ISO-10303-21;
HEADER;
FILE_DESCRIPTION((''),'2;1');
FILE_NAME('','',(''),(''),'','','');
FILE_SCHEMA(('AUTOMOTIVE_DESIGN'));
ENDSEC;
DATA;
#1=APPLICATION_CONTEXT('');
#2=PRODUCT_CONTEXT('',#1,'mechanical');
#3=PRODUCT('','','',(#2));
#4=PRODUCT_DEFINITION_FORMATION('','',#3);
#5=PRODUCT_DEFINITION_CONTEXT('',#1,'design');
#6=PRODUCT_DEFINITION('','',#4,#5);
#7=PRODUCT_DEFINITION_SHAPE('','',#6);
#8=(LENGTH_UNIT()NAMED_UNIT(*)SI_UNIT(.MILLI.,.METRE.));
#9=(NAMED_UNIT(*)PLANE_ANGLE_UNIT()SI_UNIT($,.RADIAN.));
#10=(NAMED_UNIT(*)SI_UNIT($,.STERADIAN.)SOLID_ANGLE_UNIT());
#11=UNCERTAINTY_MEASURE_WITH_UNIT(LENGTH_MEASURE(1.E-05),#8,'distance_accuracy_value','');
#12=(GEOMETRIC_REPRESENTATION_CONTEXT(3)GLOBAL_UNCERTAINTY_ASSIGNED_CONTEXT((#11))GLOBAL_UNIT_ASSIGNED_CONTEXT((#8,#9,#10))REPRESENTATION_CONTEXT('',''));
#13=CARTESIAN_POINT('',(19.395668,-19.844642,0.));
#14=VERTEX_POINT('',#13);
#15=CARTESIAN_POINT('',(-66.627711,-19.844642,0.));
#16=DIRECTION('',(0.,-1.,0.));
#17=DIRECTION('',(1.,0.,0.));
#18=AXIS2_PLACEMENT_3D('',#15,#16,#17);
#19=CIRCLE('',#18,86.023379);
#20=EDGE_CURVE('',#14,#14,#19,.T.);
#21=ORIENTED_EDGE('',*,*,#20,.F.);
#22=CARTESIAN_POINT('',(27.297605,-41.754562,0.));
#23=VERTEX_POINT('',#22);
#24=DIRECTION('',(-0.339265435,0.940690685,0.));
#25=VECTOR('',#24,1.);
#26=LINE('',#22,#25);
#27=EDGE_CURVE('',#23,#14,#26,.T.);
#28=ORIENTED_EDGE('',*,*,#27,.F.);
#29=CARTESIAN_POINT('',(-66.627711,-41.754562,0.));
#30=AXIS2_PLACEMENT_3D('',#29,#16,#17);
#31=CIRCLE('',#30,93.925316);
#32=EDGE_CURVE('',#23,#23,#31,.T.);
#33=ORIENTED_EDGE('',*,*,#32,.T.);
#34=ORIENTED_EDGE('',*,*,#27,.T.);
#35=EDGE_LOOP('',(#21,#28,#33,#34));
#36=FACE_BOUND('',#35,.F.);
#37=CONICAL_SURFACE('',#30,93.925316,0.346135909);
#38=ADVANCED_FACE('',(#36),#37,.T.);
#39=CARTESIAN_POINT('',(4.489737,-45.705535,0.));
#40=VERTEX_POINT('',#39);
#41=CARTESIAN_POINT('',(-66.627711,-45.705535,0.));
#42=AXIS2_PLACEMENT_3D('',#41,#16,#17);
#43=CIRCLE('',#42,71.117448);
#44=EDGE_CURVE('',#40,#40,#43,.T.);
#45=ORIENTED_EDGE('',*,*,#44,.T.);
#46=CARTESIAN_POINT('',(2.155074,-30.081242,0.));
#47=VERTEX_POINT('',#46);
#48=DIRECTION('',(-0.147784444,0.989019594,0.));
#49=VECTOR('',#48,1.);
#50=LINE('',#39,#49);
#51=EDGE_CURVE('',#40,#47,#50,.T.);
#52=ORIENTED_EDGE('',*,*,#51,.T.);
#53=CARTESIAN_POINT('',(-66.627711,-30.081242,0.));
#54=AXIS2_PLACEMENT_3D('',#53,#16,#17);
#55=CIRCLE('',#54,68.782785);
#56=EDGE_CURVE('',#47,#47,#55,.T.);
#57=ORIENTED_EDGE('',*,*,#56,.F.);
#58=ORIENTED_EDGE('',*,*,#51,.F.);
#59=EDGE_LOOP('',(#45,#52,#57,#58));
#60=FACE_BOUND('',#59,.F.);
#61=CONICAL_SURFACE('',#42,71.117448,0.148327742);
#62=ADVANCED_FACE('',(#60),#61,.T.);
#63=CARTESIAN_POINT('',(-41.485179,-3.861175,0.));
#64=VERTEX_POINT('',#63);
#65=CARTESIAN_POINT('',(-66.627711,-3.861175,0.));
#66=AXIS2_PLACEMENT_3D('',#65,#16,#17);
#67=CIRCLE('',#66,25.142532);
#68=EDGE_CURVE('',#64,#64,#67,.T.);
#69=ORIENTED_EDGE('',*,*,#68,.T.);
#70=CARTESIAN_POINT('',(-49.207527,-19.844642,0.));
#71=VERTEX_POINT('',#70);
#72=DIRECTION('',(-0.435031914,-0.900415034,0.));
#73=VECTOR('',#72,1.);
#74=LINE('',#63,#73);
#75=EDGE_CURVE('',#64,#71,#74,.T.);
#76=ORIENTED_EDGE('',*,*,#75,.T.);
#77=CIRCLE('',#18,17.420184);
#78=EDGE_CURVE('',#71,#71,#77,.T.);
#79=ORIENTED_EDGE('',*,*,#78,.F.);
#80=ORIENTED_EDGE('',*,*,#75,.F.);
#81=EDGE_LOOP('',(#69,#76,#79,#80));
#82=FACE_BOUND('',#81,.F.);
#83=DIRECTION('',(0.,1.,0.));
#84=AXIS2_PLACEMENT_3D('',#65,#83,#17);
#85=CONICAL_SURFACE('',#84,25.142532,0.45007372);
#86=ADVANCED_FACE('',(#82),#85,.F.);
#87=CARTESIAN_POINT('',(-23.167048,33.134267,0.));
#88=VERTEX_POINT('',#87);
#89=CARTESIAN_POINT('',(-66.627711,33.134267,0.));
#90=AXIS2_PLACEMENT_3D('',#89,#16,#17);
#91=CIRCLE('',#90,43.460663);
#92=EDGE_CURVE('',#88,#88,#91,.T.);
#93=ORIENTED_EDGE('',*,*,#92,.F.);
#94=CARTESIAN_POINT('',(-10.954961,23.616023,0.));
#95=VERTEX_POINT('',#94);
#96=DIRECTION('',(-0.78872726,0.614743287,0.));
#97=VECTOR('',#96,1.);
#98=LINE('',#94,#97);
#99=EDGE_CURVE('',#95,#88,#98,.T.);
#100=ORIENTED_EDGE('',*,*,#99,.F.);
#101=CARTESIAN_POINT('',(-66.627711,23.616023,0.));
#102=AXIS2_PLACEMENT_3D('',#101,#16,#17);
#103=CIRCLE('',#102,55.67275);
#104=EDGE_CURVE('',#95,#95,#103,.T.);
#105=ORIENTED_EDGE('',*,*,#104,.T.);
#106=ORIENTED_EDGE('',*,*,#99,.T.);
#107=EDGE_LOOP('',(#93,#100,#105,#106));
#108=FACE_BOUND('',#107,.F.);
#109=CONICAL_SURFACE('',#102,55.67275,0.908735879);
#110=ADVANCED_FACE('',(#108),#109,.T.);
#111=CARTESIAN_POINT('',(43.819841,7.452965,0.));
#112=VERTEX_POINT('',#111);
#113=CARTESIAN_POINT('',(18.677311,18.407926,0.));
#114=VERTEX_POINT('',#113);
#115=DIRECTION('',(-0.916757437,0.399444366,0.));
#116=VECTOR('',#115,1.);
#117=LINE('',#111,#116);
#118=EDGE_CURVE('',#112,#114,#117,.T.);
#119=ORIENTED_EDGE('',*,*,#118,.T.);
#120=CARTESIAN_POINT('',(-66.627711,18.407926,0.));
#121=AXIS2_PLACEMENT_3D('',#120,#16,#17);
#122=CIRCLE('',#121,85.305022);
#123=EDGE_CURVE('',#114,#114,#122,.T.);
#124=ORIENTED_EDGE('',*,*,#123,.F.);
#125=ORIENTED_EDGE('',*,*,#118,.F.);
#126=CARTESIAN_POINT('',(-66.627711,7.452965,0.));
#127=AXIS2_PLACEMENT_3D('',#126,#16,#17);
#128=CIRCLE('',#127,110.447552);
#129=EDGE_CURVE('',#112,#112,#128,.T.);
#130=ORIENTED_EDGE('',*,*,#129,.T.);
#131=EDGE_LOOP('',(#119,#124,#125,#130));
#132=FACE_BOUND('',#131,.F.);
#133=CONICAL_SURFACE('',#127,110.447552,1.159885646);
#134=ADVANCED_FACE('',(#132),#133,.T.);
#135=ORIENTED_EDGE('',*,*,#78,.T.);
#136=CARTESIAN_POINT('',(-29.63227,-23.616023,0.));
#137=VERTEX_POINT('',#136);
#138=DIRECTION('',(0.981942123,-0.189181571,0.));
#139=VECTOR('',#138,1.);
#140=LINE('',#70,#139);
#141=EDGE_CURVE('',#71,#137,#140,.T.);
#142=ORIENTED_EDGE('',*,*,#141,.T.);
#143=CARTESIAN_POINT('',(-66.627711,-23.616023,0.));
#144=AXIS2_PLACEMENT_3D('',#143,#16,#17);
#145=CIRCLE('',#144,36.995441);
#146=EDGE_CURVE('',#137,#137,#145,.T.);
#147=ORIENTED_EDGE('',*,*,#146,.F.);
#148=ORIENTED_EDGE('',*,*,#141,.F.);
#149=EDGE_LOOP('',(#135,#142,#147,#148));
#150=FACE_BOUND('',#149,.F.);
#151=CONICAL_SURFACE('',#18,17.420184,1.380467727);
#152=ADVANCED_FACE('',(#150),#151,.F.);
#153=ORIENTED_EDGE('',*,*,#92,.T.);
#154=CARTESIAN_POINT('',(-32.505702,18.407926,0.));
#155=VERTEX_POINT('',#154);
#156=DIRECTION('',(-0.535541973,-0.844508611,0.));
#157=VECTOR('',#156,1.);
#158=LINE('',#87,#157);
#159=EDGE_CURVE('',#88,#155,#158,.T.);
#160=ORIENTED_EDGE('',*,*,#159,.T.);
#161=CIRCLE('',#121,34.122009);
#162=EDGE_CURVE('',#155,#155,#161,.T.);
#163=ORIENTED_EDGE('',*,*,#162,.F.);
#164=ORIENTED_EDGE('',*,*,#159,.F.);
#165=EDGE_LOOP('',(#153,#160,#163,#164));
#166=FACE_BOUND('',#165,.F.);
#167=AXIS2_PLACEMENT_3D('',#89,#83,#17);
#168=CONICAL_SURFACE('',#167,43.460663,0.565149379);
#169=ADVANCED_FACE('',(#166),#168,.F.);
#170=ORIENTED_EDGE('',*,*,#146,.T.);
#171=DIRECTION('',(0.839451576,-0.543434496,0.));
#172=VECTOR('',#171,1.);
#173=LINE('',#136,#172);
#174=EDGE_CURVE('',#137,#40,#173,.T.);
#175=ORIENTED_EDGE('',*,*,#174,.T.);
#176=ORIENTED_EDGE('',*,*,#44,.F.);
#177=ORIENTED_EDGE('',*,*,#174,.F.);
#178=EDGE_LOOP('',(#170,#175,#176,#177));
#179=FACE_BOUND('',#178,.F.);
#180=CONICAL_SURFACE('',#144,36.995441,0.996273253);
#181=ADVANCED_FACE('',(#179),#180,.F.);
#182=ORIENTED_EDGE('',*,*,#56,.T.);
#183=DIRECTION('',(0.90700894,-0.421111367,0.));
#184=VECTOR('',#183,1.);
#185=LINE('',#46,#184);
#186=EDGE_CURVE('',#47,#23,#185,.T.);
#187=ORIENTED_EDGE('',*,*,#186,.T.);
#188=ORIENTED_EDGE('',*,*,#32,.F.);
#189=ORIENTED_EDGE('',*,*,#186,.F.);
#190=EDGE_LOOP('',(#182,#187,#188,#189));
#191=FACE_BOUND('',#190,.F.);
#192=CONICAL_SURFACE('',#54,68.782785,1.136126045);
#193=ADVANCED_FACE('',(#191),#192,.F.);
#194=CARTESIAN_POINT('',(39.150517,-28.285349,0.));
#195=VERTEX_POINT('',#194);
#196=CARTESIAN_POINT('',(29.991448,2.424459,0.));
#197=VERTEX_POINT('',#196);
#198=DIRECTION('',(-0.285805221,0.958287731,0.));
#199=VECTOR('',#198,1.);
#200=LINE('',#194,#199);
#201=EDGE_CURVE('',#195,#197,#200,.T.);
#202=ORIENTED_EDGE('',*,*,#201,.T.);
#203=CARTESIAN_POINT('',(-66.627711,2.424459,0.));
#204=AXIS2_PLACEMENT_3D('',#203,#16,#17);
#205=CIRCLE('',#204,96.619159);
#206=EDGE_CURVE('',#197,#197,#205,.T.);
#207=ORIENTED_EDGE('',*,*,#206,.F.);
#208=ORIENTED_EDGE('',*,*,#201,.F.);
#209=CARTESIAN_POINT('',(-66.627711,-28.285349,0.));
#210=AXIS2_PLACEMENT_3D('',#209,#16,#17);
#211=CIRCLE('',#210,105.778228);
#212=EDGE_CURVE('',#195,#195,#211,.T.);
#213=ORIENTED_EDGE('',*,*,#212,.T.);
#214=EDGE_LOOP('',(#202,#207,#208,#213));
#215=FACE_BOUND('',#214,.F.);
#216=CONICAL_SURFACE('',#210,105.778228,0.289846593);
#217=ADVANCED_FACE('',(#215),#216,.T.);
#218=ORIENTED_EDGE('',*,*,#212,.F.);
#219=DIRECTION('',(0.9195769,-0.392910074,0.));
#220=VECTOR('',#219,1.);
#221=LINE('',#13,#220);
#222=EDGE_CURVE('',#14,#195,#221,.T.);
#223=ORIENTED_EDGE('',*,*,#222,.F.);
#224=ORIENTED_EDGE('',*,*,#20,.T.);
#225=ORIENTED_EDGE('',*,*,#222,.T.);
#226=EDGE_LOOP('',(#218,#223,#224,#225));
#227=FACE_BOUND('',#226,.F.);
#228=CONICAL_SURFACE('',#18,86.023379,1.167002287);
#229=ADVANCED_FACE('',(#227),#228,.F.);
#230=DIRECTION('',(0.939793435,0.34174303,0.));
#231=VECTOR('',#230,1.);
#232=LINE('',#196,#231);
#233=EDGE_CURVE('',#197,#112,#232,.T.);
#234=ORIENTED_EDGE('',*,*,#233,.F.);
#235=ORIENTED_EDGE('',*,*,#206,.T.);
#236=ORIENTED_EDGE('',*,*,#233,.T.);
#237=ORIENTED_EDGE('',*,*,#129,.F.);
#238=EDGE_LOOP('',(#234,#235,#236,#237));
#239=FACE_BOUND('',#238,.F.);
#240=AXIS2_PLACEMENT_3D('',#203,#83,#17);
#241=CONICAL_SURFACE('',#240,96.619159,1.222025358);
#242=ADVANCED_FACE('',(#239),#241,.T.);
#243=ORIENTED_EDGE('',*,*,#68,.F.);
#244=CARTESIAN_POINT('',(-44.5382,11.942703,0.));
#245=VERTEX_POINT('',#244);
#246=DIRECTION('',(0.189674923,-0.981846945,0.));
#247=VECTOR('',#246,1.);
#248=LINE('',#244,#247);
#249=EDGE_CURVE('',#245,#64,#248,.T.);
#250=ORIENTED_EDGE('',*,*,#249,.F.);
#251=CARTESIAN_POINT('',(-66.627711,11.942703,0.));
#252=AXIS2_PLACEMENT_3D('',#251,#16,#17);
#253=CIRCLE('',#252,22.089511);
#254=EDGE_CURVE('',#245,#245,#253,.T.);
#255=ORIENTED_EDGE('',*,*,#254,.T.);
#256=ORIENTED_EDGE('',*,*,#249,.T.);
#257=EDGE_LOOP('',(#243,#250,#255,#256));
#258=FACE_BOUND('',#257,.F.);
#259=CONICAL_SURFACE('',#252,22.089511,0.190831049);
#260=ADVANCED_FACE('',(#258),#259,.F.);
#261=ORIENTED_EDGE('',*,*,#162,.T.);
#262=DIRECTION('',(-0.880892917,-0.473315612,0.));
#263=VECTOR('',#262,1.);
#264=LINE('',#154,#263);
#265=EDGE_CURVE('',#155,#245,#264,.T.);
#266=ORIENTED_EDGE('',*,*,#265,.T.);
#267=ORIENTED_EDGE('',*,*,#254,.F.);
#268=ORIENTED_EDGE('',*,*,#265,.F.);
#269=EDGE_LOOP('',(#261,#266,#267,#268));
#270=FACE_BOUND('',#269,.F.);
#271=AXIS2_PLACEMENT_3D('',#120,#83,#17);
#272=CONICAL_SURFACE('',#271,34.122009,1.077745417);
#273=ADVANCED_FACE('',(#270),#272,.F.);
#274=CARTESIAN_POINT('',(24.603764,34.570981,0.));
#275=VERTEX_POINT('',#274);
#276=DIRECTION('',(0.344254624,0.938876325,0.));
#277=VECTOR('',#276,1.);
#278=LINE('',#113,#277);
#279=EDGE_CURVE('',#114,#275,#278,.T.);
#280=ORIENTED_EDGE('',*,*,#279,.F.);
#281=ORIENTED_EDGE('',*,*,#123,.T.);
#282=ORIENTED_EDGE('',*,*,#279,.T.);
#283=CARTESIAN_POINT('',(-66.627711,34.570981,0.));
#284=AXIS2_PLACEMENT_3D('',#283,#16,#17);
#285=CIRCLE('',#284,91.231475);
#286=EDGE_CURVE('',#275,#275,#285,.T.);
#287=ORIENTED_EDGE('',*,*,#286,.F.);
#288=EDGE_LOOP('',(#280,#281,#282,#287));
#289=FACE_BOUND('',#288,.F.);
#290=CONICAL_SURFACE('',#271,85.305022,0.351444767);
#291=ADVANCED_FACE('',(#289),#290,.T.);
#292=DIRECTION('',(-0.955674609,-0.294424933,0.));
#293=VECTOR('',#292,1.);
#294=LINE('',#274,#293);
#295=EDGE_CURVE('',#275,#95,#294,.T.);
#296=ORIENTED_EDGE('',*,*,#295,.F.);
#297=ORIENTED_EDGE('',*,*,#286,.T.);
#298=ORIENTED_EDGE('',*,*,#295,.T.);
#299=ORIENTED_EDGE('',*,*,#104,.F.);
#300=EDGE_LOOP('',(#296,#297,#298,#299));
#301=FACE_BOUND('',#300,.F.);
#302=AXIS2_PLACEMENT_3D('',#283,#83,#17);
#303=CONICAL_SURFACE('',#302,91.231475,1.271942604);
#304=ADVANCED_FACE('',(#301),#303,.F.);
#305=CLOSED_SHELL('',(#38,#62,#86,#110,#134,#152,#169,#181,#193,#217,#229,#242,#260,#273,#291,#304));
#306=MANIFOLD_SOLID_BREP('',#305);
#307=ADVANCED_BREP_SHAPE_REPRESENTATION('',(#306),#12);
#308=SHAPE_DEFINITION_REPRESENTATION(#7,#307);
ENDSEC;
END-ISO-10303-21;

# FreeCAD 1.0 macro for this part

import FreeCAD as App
import Part
import Sketcher
Q = App.Units.Quantity

doc = App.newDocument("Part")
body = doc.addObject("PartDesign::Body", "Body")

sketch1 = body.newObject("Sketcher::SketchObject", "Sketch")
sketch1.AttachmentSupport = (doc.getObject("XY_Plane"), [""])
sketch1.MapMode = "FlatFace"
sketch1.addGeometry([
    Part.LineSegment(App.Vector(-33, 18, 0), App.Vector(-45, 12, 0)),
    Part.LineSegment(App.Vector(-45, 12, 0), App.Vector(-41, -4, 0)),
    Part.LineSegment(App.Vector(-41, -4, 0), App.Vector(-49, -20, 0)),
    Part.LineSegment(App.Vector(-49, -20, 0), App.Vector(-30, -24, 0)),
    Part.LineSegment(App.Vector(-30, -24, 0), App.Vector(4, -46, 0)),
    Part.LineSegment(App.Vector(4, -46, 0), App.Vector(2, -30, 0)),
    Part.LineSegment(App.Vector(2, -30, 0), App.Vector(27, -42, 0)),
    Part.LineSegment(App.Vector(27, -42, 0), App.Vector(19, -20, 0)),
    Part.LineSegment(App.Vector(19, -20, 0), App.Vector(39, -28, 0)),
    Part.LineSegment(App.Vector(39, -28, 0), App.Vector(30, 2, 0)),
    Part.LineSegment(App.Vector(30, 2, 0), App.Vector(44, 7, 0)),
    Part.LineSegment(App.Vector(44, 7, 0), App.Vector(19, 18, 0)),
    Part.LineSegment(App.Vector(19, 18, 0), App.Vector(25, 35, 0)),
    Part.LineSegment(App.Vector(25, 35, 0), App.Vector(-11, 24, 0)),
    Part.LineSegment(App.Vector(-11, 24, 0), App.Vector(-23, 33, 0)),
    Part.LineSegment(App.Vector(-23, 33, 0), App.Vector(-33, 18, 0)),
], False)
sketch1.addGeometry(Part.LineSegment(App.Vector(-67, 35, 0), App.Vector(-67, -46, 0)), True)
sketch1.addConstraint([
    Sketcher.Constraint("Coincident", 0, 2, 1, 1),
    Sketcher.Constraint("Coincident", 1, 2, 2, 1),
    Sketcher.Constraint("Coincident", 2, 2, 3, 1),
    Sketcher.Constraint("Coincident", 3, 2, 4, 1),
    Sketcher.Constraint("Coincident", 4, 2, 5, 1),
    Sketcher.Constraint("Coincident", 5, 2, 6, 1),
    Sketcher.Constraint("Coincident", 6, 2, 7, 1),
    Sketcher.Constraint("Coincident", 7, 2, 8, 1),
    Sketcher.Constraint("Coincident", 8, 2, 9, 1),
    Sketcher.Constraint("Coincident", 9, 2, 10, 1),
    Sketcher.Constraint("Coincident", 10, 2, 11, 1),
    Sketcher.Constraint("Coincident", 11, 2, 12, 1),
    Sketcher.Constraint("Coincident", 12, 2, 13, 1),
    Sketcher.Constraint("Coincident", 13, 2, 14, 1),
    Sketcher.Constraint("Coincident", 14, 2, 15, 1),
    Sketcher.Constraint("Coincident", 15, 2, 0, 1),
    Sketcher.Constraint("Vertical", 16),
    Sketcher.Constraint("Horizontal", 2, 2, 7, 2),
    Sketcher.Constraint("Horizontal", 11, 2, 15, 2),
    Sketcher.Constraint("Horizontal", 12, 2, 16, 1),
    Sketcher.Constraint("Horizontal", 4, 2, 16, 2),
    Sketcher.Constraint("Distance", 11, Q("27.425499 mm")),
    Sketcher.Constraint("DistanceX", 0, 2, -1, 1, Q("44.5382 mm")),
    Sketcher.Constraint("DistanceX", 2, 2, 5, 2, Q("51.362601 mm")),
    Sketcher.Constraint("DistanceY", 5, 2, 2, 2, Q("10.2366 mm")),
    Sketcher.Constraint("DistanceY", 7, 2, 9, 2, Q("22.269101 mm")),
    Sketcher.Constraint("DistanceX", 0, 2, 15, 2, Q("12.032498 mm")),
    Sketcher.Constraint("DistanceY", 1, 2, 15, 2, Q("22.269101 mm")),
    Sketcher.Constraint("Distance", 1, Q("16.096071 mm")),
    Sketcher.Constraint("Distance", 2, Q("17.751222 mm")),
    Sketcher.Constraint("Distance", 5, Q("15.797759 mm")),
    Sketcher.Constraint("Distance", 6, Q("27.720268 mm")),
    Sketcher.Constraint("Distance", 7, Q("23.291312 mm")),
    Sketcher.Constraint("Distance", 8, Q("21.482542 mm")),
    Sketcher.Constraint("Distance", 9, Q("32.046542 mm")),
    Sketcher.Constraint("Distance", 10, Q("14.71429 mm")),
    Sketcher.Constraint("Distance", 12, Q("17.215319 mm")),
    Sketcher.Constraint("DistanceY", 16, 2, 16, 1, Q("80.276516 mm")),
    Sketcher.Constraint("DistanceX", 1, 2, -1, 1, Q("41.485179 mm")),
    Sketcher.Constraint("DistanceX", 3, 2, -1, 1, Q("29.63227 mm")),
    Sketcher.Constraint("DistanceY", 5, 2, -1, 1, Q("30.081242 mm")),
    Sketcher.Constraint("DistanceX", -1, 1, 7, 2, Q("19.395668 mm")),
    Sketcher.Constraint("DistanceY", 8, 2, -1, 1, Q("28.285349 mm")),
    Sketcher.Constraint("DistanceX", -1, 1, 10, 2, Q("43.819841 mm")),
    Sketcher.Constraint("DistanceX", -1, 1, 11, 2, Q("18.677311 mm")),
    Sketcher.Constraint("DistanceY", -1, 1, 12, 2, Q("34.570981 mm")),
    Sketcher.Constraint("DistanceX", 13, 2, -1, 1, Q("10.954961 mm")),
    Sketcher.Constraint("DistanceX", 14, 2, -1, 1, Q("23.167048 mm")),
    Sketcher.Constraint("DistanceX", 16, 1, -1, 1, Q("66.627711 mm")),
    Sketcher.Constraint("DistanceY", 3, 2, 2, 2, Q("3.771381 mm")),
    Sketcher.Constraint("DistanceY", 0, 2, 13, 2, Q("11.67332 mm")),
    Sketcher.Constraint("DistanceY", 11, 2, 14, 2, Q("14.726341 mm")),
])
revolution = body.newObject("PartDesign::Revolution", "Revolution")
revolution.Profile = sketch1
revolution.ReferenceAxis = (sketch1, ["Axis0"])
revolution.Angle = 360

doc.recompute()
